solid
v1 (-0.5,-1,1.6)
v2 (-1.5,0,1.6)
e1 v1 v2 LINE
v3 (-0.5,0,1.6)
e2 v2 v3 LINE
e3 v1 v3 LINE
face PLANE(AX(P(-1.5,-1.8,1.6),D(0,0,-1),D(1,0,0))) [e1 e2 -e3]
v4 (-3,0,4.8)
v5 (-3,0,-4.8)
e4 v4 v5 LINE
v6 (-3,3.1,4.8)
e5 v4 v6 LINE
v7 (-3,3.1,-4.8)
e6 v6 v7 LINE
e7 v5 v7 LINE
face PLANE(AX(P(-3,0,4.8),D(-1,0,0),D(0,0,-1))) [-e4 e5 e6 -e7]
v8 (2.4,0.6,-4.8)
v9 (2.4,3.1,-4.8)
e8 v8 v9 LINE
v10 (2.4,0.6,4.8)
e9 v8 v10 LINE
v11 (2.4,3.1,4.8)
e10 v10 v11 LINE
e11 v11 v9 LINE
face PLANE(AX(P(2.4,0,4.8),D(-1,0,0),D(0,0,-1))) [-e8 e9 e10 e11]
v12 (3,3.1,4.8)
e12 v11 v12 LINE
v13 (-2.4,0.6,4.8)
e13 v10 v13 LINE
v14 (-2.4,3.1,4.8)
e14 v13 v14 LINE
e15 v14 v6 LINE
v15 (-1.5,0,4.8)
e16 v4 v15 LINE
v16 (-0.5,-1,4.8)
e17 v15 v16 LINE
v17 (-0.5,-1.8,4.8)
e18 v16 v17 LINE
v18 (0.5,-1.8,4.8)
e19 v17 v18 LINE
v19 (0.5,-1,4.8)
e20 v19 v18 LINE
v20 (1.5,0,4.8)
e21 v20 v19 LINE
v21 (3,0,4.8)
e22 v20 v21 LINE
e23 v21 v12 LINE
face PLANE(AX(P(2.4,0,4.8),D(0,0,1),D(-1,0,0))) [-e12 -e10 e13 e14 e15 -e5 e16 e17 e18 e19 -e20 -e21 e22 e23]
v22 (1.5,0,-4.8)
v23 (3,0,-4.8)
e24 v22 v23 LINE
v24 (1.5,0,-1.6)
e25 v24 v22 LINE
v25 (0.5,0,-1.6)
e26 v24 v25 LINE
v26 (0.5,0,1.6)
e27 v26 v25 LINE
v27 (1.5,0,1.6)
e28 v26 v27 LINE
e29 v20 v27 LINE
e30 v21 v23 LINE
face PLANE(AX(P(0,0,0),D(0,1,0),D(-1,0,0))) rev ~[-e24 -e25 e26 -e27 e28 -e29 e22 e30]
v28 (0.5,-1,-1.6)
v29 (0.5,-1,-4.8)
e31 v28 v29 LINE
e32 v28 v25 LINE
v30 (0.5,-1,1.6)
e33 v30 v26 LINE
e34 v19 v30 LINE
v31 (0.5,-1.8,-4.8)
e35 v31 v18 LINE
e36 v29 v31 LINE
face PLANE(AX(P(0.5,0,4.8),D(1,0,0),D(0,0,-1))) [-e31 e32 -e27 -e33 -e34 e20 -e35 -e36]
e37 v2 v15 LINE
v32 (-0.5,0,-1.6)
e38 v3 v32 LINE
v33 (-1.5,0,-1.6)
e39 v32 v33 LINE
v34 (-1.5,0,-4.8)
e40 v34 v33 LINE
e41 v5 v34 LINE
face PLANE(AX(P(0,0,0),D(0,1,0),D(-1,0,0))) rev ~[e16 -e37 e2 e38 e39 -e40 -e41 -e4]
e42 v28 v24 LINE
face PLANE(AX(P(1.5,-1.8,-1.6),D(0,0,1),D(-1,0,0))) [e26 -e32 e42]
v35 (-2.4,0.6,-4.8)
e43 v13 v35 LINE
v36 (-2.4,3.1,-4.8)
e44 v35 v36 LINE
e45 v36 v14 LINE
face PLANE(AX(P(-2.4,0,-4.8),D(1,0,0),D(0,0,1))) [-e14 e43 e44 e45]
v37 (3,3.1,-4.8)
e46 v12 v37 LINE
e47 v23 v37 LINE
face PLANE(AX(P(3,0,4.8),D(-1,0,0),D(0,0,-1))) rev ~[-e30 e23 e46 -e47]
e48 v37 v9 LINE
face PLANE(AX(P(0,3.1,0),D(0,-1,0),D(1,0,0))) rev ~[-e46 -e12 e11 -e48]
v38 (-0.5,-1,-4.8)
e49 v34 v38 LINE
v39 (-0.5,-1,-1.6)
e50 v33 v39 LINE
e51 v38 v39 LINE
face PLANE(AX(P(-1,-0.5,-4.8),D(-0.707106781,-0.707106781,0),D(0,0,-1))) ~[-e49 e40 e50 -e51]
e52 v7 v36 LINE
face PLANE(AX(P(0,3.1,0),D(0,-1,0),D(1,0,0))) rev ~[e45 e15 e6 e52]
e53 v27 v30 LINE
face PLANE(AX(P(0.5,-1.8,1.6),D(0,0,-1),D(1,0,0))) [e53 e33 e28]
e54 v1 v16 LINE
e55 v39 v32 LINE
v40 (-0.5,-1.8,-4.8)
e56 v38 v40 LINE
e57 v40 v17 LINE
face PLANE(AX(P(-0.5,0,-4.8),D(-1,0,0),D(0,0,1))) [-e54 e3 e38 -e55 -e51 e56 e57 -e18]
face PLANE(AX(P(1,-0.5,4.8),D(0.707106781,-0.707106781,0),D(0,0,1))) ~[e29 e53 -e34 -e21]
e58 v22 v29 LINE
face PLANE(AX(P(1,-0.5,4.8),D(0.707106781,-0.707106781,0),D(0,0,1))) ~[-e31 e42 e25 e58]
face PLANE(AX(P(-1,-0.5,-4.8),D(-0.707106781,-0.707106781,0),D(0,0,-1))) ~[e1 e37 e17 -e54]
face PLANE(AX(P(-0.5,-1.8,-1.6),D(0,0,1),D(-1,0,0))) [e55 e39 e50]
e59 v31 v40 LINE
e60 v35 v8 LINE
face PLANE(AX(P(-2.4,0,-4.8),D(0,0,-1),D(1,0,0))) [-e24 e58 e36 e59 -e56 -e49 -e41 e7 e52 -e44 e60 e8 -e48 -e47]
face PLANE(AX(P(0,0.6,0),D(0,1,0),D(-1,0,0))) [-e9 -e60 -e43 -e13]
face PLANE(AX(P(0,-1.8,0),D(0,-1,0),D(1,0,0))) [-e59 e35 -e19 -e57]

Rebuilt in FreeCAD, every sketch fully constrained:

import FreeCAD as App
import Part
import Sketcher

V = App.Vector
Q = App.Units.Quantity


def edges_at(feature, points):
    """Names of the edges that pass closest to the given points."""
    edges = feature.Shape.Edges
    near = lambda p: min(range(len(edges)), key=lambda i: edges[i].distToShape(Part.Vertex(*p))[0])
    return sorted({f"Edge{near(p) + 1}" for p in points})


def add_polygon(sketch, points):
    """Adds a closed chain of lines whose ends are joined by coincident constraints."""
    first, n = sketch.GeometryCount, len(points)
    for a, b in zip(points, points[1:] + points[:1]):
        sketch.addGeometry(Part.LineSegment(App.Vector(*a, 0), App.Vector(*b, 0)), False)
    for i in range(n):
        sketch.addConstraint(Sketcher.Constraint("Coincident", first + i, 2, first + (i + 1) % n, 1))

doc = App.newDocument("Part")
body = doc.addObject("PartDesign::Body", "Body")

# Sketch on XZ plane
sketch1 = body.newObject("Sketcher::SketchObject", "Sketch")
sketch1.AttachmentSupport = (doc.getObject("XZ_Plane"), [""])
sketch1.MapMode = "FlatFace"
add_polygon(sketch1, [(-2.4, 4.8), (2.4, 4.8), (2.4, -4.8), (-2.4, -4.8)])  # lines 0-3
sketch1.addConstraint([
    Sketcher.Constraint("Horizontal", 0),
    Sketcher.Constraint("Vertical", 1),
    Sketcher.Constraint("Horizontal", 2),
    Sketcher.Constraint("Vertical", 3),
    Sketcher.Constraint("Symmetric", 0, 2, 2, 2, -1, 1),
    Sketcher.Constraint("DistanceX", 0, 1, 0, 2, Q("4.8 mm")),
    Sketcher.Constraint("DistanceY", 1, 2, 1, 1, Q("9.6 mm")),
])
pad1 = body.newObject("PartDesign::Pad", "Pad")
pad1.Profile = sketch1
pad1.Length = 0.6
pad1.Reversed = True

# Sketch on XZ plane
sketch2 = body.newObject("Sketcher::SketchObject", "Sketch001")
sketch2.AttachmentSupport = (doc.getObject("XZ_Plane"), [""])
sketch2.MapMode = "FlatFace"
add_polygon(sketch2, [(2.4, 4.8), (2.4, -4.8), (3, -4.8), (3, 4.8)])  # lines 0-3
add_polygon(sketch2, [(-3, -4.8), (-2.4, -4.8), (-2.4, 4.8), (-3, 4.8)])  # lines 4-7
sketch2.addConstraint([
    Sketcher.Constraint("Vertical", 0),
    Sketcher.Constraint("Horizontal", 1),
    Sketcher.Constraint("Vertical", 2),
    Sketcher.Constraint("Horizontal", 3),
    Sketcher.Constraint("Horizontal", 4),
    Sketcher.Constraint("Vertical", 5),
    Sketcher.Constraint("Horizontal", 6),
    Sketcher.Constraint("Vertical", 7),
    Sketcher.Constraint("Symmetric", 3, 2, 4, 2, -1, 1),
    Sketcher.Constraint("Symmetric", 1, 2, 6, 2, -1, 1),
    Sketcher.Constraint("Horizontal", 1, 2, 4, 2),
    Sketcher.Constraint("DistanceX", 1, 1, 1, 2, Q("0.6 mm")),
    Sketcher.Constraint("DistanceY", 0, 2, 0, 1, Q("9.6 mm")),
    Sketcher.Constraint("DistanceX", -1, 1, 1, 2, Q("3 mm")),
])
pad2 = body.newObject("PartDesign::Pad", "Pad001")
pad2.Profile = sketch2
pad2.Length = 3.1
pad2.Reversed = True

# Sketch on XZ plane
sketch3 = body.newObject("Sketcher::SketchObject", "Sketch002")
sketch3.AttachmentSupport = (doc.getObject("XZ_Plane"), [""])
sketch3.MapMode = "FlatFace"
add_polygon(sketch3, [(-0.5, -4.8), (0.5, -4.8), (0.5, 4.8), (-0.5, 4.8)])  # lines 0-3
sketch3.addConstraint([
    Sketcher.Constraint("Horizontal", 0),
    Sketcher.Constraint("Vertical", 1),
    Sketcher.Constraint("Horizontal", 2),
    Sketcher.Constraint("Vertical", 3),
    Sketcher.Constraint("Symmetric", 0, 2, 2, 2, -1, 1),
    Sketcher.Constraint("DistanceX", 0, 1, 0, 2, Q("1 mm")),
    Sketcher.Constraint("DistanceY", 1, 1, 1, 2, Q("9.6 mm")),
])
pad3 = body.newObject("PartDesign::Pad", "Pad002")
pad3.Profile = sketch3
pad3.Length = 1.8
doc.recompute()

chamfer = body.newObject("PartDesign::Chamfer", "Chamfer")
chamfer.Base = (pad3, edges_at(pad3, [(-0.5, 0, 0), (0.5, 0, 0)]))
chamfer.Size = 1

# Sketch on XZ plane
sketch4 = body.newObject("Sketcher::SketchObject", "Sketch003")
sketch4.AttachmentSupport = (doc.getObject("XZ_Plane"), [""])
sketch4.MapMode = "FlatFace"
sketch4.AttachmentOffset = App.Placement(V(0, 0, 1.8), App.Rotation())
add_polygon(sketch4, [(1.5, -1.6), (1.5, 1.6), (0.5, 1.6), (0.5, -1.6)])  # lines 0-3
add_polygon(sketch4, [(-0.5, -1.6), (-0.5, 1.6), (-1.5, 1.6), (-1.5, -1.6)])  # lines 4-7
sketch4.addConstraint([
    Sketcher.Constraint("Vertical", 0),
    Sketcher.Constraint("Horizontal", 1),
    Sketcher.Constraint("Vertical", 2),
    Sketcher.Constraint("Horizontal", 3),
    Sketcher.Constraint("Vertical", 4),
    Sketcher.Constraint("Horizontal", 5),
    Sketcher.Constraint("Vertical", 6),
    Sketcher.Constraint("Horizontal", 7),
    Sketcher.Constraint("Symmetric", 2, 2, 4, 2, -1, 1),
    Sketcher.Constraint("Symmetric", 0, 2, 6, 2, -1, 1),
    Sketcher.Constraint("Horizontal", 1, 2, 4, 2),
    Sketcher.Constraint("DistanceY", 0, 1, 0, 2, Q("3.2 mm")),
    Sketcher.Constraint("DistanceX", 1, 2, 1, 1, Q("1 mm")),
    Sketcher.Constraint("DistanceX", 4, 2, 1, 2, Q("1 mm")),
])
pocket1 = body.newObject("PartDesign::Pocket", "Pocket")
pocket1.Profile = sketch4
pocket1.Length = 1.8

doc.recompute()
